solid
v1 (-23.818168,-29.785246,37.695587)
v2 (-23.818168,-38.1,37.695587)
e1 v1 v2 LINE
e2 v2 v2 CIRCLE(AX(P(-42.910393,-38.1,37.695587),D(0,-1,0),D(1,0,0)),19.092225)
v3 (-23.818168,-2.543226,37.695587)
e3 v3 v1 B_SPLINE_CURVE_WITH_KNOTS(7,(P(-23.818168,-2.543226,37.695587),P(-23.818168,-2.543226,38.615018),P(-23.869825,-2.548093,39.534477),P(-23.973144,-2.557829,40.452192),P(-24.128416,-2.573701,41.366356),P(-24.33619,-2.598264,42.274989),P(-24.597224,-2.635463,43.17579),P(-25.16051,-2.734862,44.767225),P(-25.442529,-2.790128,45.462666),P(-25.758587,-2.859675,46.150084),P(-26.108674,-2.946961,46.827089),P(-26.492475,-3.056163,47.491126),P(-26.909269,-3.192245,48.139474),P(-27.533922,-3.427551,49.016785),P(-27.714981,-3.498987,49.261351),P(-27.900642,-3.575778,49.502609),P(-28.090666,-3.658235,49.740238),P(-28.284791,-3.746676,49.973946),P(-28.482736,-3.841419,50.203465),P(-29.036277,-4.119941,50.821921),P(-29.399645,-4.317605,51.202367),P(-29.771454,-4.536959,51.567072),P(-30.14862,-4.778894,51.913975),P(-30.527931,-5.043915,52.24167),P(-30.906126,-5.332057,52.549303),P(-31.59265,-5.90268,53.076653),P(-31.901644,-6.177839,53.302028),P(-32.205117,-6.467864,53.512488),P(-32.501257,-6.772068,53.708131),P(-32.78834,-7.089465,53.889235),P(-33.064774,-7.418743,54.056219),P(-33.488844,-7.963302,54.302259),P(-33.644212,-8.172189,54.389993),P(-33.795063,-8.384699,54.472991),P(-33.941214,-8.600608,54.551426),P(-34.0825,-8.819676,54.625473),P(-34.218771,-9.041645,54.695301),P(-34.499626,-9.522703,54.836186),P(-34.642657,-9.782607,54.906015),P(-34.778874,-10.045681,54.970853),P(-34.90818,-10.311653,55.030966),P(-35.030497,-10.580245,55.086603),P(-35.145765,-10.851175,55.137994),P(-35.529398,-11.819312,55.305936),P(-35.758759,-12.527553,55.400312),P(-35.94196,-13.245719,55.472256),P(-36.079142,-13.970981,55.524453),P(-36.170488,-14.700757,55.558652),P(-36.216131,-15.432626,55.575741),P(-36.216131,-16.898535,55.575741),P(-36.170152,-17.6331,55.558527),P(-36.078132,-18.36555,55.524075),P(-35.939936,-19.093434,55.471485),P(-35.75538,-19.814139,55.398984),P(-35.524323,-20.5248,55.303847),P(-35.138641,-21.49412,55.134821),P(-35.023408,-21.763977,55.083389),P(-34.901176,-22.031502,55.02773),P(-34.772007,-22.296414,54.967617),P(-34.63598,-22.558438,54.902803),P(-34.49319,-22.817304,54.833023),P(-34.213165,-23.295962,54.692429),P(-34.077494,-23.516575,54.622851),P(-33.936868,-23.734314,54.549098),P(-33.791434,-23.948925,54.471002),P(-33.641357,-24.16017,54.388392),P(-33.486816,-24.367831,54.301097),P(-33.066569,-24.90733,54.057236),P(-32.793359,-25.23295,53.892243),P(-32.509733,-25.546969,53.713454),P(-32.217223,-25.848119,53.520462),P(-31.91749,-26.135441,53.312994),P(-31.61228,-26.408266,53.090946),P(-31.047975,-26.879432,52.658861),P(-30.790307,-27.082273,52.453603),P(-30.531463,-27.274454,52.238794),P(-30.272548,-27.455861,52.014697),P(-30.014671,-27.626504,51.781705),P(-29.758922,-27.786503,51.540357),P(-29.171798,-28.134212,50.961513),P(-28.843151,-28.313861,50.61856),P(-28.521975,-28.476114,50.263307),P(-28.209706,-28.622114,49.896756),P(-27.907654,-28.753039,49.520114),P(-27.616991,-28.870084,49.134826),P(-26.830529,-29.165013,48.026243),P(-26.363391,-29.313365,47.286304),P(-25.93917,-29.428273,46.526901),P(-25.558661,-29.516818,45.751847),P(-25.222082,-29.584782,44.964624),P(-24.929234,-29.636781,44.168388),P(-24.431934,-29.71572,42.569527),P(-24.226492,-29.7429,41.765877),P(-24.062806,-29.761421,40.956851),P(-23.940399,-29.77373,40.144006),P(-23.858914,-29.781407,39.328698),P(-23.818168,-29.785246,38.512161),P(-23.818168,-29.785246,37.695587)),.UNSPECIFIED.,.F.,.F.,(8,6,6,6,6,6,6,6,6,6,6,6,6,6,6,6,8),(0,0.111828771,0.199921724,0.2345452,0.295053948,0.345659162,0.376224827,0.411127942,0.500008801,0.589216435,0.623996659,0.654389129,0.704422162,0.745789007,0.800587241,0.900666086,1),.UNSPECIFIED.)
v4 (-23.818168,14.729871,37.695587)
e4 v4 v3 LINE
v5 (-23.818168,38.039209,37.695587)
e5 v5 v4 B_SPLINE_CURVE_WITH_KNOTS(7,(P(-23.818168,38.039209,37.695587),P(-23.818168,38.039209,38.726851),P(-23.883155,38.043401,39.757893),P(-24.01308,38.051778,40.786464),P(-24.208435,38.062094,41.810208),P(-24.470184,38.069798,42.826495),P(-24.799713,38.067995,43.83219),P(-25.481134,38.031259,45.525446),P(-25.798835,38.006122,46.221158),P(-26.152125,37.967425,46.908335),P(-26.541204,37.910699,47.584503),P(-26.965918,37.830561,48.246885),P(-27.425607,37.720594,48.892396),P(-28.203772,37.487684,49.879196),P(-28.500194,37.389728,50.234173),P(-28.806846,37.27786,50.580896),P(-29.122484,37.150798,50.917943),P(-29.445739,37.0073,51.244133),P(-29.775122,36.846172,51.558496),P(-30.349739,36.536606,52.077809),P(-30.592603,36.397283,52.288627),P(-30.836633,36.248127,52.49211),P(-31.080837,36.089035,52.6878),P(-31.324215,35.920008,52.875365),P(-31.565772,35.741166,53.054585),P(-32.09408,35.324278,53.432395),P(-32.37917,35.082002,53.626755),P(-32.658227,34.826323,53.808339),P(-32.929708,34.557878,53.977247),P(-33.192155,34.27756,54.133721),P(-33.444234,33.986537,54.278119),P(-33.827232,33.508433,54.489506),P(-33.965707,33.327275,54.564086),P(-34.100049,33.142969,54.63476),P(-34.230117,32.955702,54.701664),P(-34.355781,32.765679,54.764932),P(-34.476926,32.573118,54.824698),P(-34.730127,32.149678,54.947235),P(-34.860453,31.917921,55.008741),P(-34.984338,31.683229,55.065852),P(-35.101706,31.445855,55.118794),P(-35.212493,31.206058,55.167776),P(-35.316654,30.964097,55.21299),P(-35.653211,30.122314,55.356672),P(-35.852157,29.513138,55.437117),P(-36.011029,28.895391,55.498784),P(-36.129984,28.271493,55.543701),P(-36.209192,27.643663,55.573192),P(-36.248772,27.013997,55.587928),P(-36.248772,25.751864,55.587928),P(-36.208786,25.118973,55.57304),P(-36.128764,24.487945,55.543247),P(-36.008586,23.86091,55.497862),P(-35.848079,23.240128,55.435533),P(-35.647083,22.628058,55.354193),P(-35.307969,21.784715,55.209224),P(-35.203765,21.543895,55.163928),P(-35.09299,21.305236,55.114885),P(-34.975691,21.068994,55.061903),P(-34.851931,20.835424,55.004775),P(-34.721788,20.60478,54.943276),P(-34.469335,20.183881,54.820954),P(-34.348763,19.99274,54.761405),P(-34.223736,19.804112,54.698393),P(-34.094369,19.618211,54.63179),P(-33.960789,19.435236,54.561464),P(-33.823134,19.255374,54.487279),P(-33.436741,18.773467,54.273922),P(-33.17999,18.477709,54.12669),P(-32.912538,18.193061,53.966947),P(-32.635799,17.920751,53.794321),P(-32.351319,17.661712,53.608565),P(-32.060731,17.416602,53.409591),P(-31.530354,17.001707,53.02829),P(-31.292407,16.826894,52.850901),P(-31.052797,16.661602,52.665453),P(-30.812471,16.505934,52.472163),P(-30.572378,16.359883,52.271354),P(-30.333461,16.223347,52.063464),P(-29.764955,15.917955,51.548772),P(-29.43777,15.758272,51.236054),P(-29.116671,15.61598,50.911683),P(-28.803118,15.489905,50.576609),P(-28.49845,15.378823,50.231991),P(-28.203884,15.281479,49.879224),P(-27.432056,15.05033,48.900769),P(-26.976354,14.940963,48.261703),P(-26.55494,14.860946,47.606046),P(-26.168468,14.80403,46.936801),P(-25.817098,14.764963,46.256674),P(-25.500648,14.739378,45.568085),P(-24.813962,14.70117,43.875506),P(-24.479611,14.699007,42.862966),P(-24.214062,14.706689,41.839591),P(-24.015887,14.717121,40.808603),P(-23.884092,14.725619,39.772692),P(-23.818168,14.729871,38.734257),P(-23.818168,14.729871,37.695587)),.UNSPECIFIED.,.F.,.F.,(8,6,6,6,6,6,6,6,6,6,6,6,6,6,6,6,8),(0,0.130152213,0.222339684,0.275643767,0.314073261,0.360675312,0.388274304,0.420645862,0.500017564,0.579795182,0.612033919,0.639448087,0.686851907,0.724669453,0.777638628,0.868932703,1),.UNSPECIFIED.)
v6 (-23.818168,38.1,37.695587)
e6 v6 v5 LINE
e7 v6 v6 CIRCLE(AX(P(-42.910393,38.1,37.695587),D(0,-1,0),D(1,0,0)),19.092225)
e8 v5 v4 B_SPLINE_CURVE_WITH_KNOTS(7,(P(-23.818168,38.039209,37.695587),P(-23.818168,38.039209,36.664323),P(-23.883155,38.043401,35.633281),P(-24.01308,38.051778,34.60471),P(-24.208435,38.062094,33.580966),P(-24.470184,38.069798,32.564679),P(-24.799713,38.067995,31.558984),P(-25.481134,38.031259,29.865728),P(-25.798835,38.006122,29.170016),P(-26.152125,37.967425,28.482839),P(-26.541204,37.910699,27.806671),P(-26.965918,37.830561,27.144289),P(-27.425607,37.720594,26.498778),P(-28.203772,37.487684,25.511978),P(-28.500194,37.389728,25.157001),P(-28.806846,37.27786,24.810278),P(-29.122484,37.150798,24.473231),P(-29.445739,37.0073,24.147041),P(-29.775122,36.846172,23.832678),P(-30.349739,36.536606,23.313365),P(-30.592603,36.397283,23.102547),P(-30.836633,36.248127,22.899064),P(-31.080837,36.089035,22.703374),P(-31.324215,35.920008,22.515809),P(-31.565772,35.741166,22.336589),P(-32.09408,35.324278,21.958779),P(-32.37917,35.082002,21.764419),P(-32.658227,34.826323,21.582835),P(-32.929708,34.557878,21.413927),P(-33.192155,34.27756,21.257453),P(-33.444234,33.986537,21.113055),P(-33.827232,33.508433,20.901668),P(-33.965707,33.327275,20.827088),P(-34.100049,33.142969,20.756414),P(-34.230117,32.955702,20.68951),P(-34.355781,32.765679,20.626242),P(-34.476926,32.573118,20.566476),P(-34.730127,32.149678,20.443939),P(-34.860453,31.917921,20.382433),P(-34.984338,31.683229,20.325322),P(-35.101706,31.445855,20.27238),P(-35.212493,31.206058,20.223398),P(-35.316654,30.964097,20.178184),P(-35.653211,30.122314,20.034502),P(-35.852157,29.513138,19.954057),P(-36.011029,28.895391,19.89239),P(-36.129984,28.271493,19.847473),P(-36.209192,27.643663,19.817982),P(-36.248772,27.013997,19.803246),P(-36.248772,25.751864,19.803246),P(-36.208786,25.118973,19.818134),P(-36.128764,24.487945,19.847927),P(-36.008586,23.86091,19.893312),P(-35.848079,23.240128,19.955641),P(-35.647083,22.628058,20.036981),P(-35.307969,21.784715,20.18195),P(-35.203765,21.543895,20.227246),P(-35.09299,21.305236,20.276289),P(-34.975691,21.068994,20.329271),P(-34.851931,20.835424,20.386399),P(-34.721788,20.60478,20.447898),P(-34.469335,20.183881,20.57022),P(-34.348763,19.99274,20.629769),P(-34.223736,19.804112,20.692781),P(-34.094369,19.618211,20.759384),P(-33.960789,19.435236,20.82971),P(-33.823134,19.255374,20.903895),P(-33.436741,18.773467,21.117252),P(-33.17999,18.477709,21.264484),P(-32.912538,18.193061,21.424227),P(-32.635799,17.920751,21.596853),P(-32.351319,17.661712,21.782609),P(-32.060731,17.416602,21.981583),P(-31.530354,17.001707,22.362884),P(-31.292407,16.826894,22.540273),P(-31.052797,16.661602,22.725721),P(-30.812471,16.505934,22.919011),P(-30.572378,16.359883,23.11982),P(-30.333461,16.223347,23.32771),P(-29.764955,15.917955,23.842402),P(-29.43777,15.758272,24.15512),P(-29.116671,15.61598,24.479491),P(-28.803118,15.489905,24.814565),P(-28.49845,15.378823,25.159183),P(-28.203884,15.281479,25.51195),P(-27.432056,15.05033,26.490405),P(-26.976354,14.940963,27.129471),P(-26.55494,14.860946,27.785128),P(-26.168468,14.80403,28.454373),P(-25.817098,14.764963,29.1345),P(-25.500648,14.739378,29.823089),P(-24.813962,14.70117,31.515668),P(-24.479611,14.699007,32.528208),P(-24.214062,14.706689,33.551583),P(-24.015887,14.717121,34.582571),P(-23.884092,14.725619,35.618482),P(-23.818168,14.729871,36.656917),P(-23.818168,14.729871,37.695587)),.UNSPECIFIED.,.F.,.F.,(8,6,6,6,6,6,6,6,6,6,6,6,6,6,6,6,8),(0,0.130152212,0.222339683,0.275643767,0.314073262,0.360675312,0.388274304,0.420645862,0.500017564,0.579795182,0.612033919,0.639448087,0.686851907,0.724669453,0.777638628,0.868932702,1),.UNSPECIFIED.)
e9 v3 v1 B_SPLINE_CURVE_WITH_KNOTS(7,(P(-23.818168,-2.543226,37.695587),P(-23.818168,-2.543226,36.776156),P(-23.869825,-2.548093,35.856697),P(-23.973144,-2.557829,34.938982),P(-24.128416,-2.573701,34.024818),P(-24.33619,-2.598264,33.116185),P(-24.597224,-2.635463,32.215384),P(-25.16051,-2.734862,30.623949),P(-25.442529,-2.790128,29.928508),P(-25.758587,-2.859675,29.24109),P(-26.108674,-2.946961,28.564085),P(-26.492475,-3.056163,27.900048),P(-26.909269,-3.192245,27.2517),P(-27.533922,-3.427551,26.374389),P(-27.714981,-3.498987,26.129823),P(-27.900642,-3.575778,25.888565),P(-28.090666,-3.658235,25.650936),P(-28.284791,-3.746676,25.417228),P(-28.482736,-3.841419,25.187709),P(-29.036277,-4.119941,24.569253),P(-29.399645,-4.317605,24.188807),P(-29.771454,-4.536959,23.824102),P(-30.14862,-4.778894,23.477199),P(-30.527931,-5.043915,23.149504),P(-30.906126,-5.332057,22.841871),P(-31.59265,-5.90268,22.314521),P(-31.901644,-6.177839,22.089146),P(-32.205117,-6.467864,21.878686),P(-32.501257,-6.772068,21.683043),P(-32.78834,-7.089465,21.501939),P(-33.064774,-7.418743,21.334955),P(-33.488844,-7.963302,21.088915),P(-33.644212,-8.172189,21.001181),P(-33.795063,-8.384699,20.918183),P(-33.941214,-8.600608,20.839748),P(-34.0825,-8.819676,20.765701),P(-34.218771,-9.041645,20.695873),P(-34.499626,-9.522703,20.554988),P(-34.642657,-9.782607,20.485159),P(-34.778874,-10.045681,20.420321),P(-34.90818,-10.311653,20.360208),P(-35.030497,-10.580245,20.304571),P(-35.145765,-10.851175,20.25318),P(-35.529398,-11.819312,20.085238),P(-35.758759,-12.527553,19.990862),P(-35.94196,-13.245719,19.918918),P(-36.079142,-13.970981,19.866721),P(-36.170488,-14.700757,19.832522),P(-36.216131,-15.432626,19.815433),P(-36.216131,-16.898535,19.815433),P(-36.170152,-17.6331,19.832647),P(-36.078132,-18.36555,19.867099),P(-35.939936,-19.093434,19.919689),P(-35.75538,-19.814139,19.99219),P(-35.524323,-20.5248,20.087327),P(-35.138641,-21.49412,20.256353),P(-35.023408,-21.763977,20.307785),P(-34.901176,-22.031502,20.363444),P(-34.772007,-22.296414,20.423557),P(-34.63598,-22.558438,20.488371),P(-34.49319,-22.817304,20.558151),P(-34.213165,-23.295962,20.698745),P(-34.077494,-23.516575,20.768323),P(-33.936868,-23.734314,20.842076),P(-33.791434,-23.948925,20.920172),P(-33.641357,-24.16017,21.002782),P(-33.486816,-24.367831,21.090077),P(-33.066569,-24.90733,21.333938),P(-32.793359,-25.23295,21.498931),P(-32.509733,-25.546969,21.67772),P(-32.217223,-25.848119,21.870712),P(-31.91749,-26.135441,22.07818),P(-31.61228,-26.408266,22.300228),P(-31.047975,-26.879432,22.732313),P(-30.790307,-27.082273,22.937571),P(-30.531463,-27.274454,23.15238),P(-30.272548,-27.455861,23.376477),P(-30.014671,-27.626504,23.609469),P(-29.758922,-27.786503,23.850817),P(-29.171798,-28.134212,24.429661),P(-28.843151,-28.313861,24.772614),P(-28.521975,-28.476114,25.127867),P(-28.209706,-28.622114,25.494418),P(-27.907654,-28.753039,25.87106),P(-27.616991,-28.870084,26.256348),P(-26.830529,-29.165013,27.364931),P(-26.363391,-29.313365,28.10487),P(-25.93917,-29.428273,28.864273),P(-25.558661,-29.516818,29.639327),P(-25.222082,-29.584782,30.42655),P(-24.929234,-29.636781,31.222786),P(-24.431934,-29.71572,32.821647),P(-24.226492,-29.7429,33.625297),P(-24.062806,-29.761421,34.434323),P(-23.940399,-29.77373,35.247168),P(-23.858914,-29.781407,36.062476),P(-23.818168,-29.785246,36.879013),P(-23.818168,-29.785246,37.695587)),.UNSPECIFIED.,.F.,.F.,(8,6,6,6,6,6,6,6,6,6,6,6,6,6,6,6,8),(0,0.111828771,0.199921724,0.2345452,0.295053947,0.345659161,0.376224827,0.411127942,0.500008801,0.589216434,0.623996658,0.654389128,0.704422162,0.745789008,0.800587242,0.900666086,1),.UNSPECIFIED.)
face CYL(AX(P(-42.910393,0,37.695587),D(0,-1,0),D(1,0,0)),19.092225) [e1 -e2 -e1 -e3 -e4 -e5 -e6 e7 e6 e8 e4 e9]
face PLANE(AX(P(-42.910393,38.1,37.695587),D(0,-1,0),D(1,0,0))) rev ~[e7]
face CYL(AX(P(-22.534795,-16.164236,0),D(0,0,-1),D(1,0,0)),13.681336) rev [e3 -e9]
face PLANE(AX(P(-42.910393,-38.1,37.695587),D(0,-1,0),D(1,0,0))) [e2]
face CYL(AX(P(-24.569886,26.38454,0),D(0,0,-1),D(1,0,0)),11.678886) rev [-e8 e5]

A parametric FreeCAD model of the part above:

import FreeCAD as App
import Part
import Sketcher

doc = App.newDocument("Part")
params = doc.addObject("Spreadsheet::Sheet", "Params")
for row, (alias, value) in enumerate([
    ("pad1_length", "3 in"),
], start=1):
    params.set(f"A{row}", alias)
    params.set(f"B{row}", "=" + value)
    params.setAlias(f"B{row}", alias)

body = doc.addObject("PartDesign::Body", "Body")

sketch1 = doc.addObject("Sketcher::SketchObject", "Sketch")
body.addObject(sketch1)
sketch1.AttachmentSupport = (doc.XZ_Plane, [""])
sketch1.MapMode = "FlatFace"
sketch1.addGeometry(Part.Circle(App.Vector(-43, 38, 0), App.Vector(0, 0, 1), 19), False)
sketch1.addConstraint(Sketcher.Constraint("Diameter", 0, 38.18445))
sketch1.addConstraint(Sketcher.Constraint("DistanceX", 0, 3, -1, 1, 42.910393))
sketch1.addConstraint(Sketcher.Constraint("DistanceY", -1, 1, 0, 3, 37.695587))
pad1 = doc.addObject("PartDesign::Pad", "Pad")
body.addObject(pad1)
pad1.Profile = sketch1
pad1.setExpression("Length", "Params.pad1_length")
pad1.Midplane = True

sketch2 = doc.addObject("Sketcher::SketchObject", "Sketch001")
body.addObject(sketch2)
sketch2.AttachmentSupport = (doc.XY_Plane, [""])
sketch2.MapMode = "FlatFace"
sketch2.addGeometry(Part.Circle(App.Vector(-25, 26, 0), App.Vector(0, 0, 1), 12), False)
sketch2.addGeometry(Part.Circle(App.Vector(-23, -16, 0), App.Vector(0, 0, 1), 14), False)
sketch2.addConstraint(Sketcher.Constraint("Diameter", 1, 27.362672))
sketch2.addConstraint(Sketcher.Constraint("Diameter", 0, 23.357772))
sketch2.addConstraint(Sketcher.Constraint("DistanceY", -1, 1, 0, 3, 26.38454))
sketch2.addConstraint(Sketcher.Constraint("DistanceX", 0, 3, 1, 3, 2.035091))
sketch2.addConstraint(Sketcher.Constraint("DistanceX", 0, 3, -1, 1, 24.569886))
sketch2.addConstraint(Sketcher.Constraint("DistanceY", 1, 3, -1, 1, 16.164236))
pocket1 = doc.addObject("PartDesign::Pocket", "Pocket")
body.addObject(pocket1)
pocket1.Profile = sketch2
pocket1.Type = "ThroughAll"
pocket1.Reversed = True

doc.recompute()
